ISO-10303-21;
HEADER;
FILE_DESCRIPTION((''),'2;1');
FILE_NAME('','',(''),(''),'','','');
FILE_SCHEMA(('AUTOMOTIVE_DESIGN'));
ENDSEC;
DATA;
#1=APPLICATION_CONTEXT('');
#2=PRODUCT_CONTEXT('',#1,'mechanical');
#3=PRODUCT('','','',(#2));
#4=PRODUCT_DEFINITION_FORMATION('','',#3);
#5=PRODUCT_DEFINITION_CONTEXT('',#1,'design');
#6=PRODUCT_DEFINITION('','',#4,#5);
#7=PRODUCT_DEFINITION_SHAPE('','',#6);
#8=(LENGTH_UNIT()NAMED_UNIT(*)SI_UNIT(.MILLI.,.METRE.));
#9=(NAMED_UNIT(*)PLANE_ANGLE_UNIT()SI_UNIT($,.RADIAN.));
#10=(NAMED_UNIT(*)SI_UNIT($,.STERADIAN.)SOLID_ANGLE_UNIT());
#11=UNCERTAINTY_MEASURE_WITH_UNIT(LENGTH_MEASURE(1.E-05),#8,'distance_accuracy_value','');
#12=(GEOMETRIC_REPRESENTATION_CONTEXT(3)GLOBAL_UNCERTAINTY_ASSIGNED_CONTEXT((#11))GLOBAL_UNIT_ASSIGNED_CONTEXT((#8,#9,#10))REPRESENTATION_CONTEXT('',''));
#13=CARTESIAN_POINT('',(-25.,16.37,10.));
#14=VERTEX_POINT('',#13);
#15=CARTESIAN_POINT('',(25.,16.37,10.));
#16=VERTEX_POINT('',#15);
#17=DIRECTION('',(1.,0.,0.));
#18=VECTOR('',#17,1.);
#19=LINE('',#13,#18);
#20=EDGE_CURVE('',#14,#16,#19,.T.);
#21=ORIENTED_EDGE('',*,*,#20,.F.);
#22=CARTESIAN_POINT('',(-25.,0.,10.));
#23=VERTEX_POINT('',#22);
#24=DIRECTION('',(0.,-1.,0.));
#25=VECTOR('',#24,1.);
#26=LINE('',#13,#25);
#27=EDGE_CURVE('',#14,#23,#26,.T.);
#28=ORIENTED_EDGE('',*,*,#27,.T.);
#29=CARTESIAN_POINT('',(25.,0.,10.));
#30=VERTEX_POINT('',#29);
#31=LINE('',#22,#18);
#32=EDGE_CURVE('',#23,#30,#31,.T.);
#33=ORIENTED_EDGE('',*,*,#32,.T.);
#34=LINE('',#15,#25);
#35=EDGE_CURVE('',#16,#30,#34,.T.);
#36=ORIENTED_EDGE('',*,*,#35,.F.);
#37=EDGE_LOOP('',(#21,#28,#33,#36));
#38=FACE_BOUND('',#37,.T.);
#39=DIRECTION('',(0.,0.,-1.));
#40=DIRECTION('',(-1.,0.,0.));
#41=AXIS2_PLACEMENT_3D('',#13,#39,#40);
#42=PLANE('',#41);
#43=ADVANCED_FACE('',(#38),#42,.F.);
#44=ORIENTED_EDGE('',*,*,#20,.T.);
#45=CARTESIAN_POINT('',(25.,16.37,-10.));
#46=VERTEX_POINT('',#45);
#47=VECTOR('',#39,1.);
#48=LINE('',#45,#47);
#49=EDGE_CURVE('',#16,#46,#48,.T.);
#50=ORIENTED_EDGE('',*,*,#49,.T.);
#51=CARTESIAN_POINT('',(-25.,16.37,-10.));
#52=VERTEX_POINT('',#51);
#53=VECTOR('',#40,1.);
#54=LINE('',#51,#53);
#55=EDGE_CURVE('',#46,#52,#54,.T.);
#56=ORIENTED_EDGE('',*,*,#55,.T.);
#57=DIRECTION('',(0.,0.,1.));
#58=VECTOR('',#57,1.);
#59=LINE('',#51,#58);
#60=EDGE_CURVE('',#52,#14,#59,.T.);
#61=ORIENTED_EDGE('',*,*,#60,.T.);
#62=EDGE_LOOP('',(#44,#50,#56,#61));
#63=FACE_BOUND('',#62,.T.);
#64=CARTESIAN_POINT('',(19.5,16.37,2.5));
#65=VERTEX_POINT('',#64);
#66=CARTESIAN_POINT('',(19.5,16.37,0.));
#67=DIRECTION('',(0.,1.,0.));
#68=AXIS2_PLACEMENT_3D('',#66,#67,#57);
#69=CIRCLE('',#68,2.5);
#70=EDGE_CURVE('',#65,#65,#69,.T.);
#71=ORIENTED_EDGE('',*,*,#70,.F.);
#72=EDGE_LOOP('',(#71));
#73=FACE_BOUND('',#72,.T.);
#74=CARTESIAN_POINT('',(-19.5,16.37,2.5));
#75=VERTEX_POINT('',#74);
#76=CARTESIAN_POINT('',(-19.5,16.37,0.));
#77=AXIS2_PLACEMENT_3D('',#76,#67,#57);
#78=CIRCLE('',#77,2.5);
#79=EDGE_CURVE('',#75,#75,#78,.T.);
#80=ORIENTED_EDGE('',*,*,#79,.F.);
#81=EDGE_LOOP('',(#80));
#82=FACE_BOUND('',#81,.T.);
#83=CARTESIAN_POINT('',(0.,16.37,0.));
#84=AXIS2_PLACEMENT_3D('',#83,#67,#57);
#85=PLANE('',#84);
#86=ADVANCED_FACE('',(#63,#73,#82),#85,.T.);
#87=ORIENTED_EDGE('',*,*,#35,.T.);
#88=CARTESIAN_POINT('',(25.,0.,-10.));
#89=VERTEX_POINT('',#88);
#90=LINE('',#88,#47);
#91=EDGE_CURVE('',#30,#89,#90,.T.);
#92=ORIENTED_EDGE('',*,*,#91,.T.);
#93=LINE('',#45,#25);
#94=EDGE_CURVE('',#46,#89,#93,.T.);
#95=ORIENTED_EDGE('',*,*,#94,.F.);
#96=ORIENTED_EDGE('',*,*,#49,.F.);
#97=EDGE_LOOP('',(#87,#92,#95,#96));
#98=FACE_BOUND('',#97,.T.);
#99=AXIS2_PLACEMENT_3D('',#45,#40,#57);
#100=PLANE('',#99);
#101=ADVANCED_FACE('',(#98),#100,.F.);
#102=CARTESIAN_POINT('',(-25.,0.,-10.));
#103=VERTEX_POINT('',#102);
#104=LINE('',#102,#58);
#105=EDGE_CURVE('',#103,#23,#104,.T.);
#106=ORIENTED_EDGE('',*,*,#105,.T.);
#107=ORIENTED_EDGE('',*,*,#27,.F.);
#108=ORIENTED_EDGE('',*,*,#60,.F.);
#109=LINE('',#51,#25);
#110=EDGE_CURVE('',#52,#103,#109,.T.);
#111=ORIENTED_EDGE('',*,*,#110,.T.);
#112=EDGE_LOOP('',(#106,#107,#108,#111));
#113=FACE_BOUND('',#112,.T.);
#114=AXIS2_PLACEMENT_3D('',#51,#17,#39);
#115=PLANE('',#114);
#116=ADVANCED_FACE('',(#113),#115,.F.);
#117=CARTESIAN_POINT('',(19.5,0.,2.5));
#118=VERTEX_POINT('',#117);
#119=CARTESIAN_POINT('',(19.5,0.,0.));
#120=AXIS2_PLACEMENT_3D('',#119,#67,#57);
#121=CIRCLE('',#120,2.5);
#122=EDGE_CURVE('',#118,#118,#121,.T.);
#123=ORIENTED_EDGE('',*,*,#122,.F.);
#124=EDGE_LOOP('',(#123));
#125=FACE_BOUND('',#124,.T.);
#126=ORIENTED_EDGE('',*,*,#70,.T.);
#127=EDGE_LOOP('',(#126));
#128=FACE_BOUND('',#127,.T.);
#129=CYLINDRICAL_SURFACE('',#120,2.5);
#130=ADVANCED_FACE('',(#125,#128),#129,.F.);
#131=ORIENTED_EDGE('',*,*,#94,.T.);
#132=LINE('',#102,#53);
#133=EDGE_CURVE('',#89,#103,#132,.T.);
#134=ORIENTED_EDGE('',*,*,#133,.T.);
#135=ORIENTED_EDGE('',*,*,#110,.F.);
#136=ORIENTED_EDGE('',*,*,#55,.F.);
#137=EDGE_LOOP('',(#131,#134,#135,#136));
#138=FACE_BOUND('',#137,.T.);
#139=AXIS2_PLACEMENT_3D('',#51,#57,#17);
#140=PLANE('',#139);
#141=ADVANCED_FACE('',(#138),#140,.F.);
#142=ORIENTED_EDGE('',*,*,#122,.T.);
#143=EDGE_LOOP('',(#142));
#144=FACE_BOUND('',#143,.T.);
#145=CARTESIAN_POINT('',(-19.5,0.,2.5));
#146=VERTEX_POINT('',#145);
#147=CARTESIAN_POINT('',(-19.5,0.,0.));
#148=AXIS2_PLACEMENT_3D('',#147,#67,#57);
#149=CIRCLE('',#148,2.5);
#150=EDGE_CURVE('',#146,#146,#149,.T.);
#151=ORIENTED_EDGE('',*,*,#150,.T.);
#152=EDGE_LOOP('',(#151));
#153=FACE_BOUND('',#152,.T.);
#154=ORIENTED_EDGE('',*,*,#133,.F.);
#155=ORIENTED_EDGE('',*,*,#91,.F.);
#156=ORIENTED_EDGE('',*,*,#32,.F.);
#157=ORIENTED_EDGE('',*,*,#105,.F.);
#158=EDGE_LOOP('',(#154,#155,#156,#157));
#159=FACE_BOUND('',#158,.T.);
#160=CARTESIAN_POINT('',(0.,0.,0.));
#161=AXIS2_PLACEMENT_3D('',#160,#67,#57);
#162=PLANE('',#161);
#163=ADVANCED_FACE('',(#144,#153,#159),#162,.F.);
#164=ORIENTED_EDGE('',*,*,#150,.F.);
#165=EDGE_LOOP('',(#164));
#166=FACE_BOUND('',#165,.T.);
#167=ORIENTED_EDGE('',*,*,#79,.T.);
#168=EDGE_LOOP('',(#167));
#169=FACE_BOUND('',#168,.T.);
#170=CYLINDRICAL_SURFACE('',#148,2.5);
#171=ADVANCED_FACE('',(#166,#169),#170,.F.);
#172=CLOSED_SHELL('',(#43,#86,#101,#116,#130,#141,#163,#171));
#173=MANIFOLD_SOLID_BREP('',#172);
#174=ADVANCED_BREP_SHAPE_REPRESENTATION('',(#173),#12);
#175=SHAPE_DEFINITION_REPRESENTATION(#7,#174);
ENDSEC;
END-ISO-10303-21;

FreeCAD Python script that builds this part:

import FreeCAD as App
import Part
import Sketcher
from FreeCAD import Vector
Q = App.Units.Quantity


def add_polygon(sketch, points):
    """Adds a closed chain of lines whose ends are joined by coincident constraints."""
    first, n = sketch.GeometryCount, len(points)
    for a, b in zip(points, points[1:] + points[:1]):
        sketch.addGeometry(Part.LineSegment(App.Vector(*a, 0), App.Vector(*b, 0)), False)
    for i in range(n):
        sketch.addConstraint(Sketcher.Constraint("Coincident", first + i, 2, first + (i + 1) % n, 1))

doc = App.newDocument("Part")
params = doc.addObject("Spreadsheet::Sheet", "Params")
for row, (alias, value) in enumerate([
    ("sketch1_width", "50 mm"),
    ("sketch1_height", "20 mm"),
    ("pad1_length", "16.37 mm"),
    ("sketch2_diameter", "5 mm"),
], start=1):
    params.set(f"A{row}", alias)
    params.set(f"B{row}", "=" + value)
    params.setAlias(f"B{row}", alias)

body = doc.addObject("PartDesign::Body", "Body")

sketch1 = body.newObject("Sketcher::SketchObject", "Sketch")
sketch1.AttachmentSupport = (doc.getObject("XZ_Plane"), [""])
sketch1.MapMode = "FlatFace"
add_polygon(sketch1, [(-25, -10), (-25, 10), (25, 10), (25, -10)])
sketch1.addConstraint(Sketcher.Constraint("Vertical", 0))
sketch1.addConstraint(Sketcher.Constraint("Horizontal", 1))
sketch1.addConstraint(Sketcher.Constraint("Vertical", 2))
sketch1.addConstraint(Sketcher.Constraint("Horizontal", 3))
sketch1.addConstraint(Sketcher.Constraint("Symmetric", 0, 2, 2, 2, -1, 1))
sketch1.addConstraint(Sketcher.Constraint("DistanceX", 1, 1, 1, 2, Q("50 mm")))
sketch1.addConstraint(Sketcher.Constraint("DistanceY", 0, 1, 0, 2, Q("20 mm")))
sketch1.setExpression("Constraints[9]", "Params.sketch1_width")
sketch1.setExpression("Constraints[10]", "Params.sketch1_height")
pad1 = body.newObject("PartDesign::Pad", "Pad")
pad1.Profile = sketch1
pad1.setExpression("Length", "Params.pad1_length")
pad1.Reversed = True

sketch2 = body.newObject("Sketcher::SketchObject", "Sketch001")
sketch2.AttachmentSupport = (doc.getObject("XZ_Plane"), [""])
sketch2.MapMode = "FlatFace"
sketch2.AttachmentOffset = App.Placement(Vector(0, 0, -16.37), App.Rotation())
sketch2.addGeometry(Part.Circle(Vector(19.5, 0, 0), Vector(0, 0, 1), 2.5), False)
sketch2.addGeometry(Part.Circle(Vector(-19.5, 0, 0), Vector(0, 0, 1), 2.5), False)
sketch2.addConstraint(Sketcher.Constraint("Equal", 0, 1))
sketch2.addConstraint(Sketcher.Constraint("Symmetric", 0, 3, 1, 3, -1, 1))
sketch2.addConstraint(Sketcher.Constraint("PointOnObject", 0, 3, -1))
sketch2.addConstraint(Sketcher.Constraint("Diameter", 0, Q("5 mm")))
sketch2.addConstraint(Sketcher.Constraint("DistanceX", 1, 3, 0, 3, Q("39 mm")))
sketch2.setExpression("Constraints[3]", "Params.sketch2_diameter")
pocket1 = body.newObject("PartDesign::Pocket", "Pocket")
pocket1.Profile = sketch2
pocket1.Type = "ThroughAll"
pocket1.Reversed = True

doc.recompute()
